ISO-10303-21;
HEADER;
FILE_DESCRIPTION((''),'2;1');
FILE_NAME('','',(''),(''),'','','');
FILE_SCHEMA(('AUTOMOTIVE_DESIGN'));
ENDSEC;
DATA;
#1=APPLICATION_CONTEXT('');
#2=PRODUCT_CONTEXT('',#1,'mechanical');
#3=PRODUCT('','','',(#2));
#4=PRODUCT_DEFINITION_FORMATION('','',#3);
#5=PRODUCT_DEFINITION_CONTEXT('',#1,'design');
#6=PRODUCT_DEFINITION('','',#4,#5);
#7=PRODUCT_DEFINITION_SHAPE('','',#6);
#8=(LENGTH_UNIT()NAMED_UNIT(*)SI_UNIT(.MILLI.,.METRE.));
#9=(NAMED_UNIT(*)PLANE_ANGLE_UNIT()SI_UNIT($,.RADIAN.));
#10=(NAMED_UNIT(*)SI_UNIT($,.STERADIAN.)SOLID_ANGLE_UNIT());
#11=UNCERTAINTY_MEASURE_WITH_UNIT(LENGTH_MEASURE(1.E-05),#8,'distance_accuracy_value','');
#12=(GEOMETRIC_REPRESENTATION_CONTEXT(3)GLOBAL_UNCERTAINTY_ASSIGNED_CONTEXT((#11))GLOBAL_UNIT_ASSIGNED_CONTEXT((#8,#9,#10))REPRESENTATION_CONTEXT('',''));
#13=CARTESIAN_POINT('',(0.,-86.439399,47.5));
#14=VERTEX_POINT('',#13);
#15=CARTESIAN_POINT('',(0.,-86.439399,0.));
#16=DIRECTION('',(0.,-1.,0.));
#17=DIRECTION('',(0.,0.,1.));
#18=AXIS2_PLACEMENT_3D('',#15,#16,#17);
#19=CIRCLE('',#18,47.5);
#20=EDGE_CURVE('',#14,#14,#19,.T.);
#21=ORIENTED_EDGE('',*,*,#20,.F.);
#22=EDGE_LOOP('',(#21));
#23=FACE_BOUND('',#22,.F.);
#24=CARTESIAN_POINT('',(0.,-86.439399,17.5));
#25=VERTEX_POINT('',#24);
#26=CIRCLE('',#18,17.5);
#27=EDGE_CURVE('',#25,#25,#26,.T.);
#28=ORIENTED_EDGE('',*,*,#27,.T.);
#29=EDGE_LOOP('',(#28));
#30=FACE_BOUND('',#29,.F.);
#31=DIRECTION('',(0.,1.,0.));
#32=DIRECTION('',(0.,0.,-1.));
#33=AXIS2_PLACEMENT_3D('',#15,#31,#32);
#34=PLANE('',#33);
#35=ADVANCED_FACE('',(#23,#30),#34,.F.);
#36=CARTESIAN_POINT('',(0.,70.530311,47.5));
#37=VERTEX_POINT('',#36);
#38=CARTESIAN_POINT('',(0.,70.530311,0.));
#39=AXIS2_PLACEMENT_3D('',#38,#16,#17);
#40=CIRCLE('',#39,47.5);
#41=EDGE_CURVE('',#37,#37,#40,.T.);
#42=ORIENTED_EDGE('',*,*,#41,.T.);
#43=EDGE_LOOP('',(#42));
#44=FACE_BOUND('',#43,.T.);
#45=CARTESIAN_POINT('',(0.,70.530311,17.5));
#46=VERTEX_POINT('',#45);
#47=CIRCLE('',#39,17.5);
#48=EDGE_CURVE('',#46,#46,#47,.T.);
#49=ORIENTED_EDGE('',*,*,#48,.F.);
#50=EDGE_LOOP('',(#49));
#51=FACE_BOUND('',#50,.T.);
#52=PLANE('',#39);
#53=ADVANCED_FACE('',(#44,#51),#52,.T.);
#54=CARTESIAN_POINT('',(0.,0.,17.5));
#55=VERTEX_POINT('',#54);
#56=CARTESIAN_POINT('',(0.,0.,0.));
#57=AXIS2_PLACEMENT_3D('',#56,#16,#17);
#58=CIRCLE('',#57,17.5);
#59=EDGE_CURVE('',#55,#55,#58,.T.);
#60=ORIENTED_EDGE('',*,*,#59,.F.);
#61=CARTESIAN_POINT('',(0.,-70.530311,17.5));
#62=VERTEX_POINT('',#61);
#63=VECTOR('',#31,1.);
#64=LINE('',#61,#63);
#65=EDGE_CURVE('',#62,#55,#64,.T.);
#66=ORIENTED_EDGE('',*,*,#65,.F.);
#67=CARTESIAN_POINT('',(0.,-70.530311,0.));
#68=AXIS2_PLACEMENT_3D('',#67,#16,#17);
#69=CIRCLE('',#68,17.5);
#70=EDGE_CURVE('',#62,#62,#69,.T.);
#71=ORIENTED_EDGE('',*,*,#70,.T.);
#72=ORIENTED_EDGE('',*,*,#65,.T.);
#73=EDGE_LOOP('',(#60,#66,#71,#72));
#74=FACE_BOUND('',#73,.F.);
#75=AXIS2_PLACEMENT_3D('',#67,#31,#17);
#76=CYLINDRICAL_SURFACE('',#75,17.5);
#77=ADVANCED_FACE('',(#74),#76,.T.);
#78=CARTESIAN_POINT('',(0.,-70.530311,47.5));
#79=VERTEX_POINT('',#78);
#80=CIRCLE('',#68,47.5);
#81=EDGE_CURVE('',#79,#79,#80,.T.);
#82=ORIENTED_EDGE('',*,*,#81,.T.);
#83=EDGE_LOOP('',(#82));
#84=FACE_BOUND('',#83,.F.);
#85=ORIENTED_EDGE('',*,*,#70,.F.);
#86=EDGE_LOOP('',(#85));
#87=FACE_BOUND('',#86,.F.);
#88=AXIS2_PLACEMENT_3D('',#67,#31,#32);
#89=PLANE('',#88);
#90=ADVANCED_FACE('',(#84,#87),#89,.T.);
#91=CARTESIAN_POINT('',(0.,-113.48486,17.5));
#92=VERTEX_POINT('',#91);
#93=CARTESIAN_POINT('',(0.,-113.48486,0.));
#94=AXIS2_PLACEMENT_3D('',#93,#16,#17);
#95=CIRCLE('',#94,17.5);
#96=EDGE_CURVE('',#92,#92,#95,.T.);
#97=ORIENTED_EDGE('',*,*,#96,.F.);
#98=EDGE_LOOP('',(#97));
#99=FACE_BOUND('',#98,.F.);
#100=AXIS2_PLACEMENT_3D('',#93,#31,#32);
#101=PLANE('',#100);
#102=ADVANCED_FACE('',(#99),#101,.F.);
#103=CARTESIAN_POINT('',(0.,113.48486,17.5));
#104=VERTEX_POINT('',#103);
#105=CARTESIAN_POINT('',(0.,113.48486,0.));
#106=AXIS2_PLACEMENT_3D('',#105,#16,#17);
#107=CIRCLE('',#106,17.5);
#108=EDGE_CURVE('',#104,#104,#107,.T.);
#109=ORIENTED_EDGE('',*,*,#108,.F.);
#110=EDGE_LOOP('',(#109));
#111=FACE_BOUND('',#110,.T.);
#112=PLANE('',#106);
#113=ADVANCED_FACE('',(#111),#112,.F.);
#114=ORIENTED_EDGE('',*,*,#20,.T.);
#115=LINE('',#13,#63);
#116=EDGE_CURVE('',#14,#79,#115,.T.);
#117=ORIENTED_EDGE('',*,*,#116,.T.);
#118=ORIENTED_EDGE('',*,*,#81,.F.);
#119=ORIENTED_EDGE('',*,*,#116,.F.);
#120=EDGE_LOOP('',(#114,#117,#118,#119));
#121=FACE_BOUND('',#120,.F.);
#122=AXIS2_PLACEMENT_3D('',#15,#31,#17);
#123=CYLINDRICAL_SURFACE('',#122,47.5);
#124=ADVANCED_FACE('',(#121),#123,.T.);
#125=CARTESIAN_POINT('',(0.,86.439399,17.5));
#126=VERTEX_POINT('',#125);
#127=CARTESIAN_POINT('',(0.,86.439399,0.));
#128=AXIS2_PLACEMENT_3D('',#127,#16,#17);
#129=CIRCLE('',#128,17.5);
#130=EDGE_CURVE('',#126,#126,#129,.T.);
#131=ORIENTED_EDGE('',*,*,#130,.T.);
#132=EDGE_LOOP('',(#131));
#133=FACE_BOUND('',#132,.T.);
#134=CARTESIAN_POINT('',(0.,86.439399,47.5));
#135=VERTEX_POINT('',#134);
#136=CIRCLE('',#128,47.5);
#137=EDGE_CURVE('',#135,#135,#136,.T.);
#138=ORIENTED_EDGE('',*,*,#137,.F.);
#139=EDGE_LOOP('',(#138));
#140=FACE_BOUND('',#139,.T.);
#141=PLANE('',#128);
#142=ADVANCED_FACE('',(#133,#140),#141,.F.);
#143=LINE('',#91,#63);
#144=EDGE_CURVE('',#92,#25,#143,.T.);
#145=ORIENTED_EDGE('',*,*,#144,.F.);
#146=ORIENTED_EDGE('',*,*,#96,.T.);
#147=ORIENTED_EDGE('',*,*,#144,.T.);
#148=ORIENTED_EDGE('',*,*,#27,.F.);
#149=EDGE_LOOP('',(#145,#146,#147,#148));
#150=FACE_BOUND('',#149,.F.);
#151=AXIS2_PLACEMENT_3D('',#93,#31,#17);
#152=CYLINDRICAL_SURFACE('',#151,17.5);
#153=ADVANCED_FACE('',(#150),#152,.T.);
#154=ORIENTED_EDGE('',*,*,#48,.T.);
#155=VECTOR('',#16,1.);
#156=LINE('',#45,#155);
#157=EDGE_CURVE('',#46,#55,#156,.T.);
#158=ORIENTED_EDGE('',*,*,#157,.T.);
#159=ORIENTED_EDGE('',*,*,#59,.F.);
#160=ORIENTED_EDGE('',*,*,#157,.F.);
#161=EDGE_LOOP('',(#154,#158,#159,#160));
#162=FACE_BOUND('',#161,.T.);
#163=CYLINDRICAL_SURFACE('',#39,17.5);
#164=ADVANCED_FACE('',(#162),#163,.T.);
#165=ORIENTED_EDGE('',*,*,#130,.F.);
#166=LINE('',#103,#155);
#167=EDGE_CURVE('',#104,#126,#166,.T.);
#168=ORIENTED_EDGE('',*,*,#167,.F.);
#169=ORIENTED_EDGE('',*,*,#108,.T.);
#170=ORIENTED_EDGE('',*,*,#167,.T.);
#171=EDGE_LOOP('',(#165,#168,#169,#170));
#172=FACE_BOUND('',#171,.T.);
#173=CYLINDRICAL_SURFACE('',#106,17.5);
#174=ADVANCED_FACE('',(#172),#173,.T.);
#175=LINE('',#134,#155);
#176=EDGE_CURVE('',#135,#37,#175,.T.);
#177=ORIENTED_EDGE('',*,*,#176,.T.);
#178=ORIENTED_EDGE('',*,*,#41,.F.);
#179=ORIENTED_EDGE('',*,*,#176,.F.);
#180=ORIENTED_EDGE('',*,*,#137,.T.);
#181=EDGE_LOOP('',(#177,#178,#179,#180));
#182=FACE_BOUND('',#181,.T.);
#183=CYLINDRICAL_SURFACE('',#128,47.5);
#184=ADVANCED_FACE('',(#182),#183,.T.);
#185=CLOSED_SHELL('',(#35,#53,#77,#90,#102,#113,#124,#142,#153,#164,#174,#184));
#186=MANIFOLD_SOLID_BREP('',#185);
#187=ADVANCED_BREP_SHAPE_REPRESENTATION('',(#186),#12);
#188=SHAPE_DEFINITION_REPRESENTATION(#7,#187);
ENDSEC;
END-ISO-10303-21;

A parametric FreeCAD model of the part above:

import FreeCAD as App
import Part
import Sketcher

V = App.Vector
Q = App.Units.Quantity

doc = App.newDocument("Part")
body = doc.addObject("PartDesign::Body", "Body")

sketch1 = doc.addObject("Sketcher::SketchObject", "Sketch")
body.addObject(sketch1)
sketch1.AttachmentSupport = (doc.YZ_Plane, [""])
sketch1.MapMode = "FlatFace"
sketch1.addGeometry(Part.LineSegment(V(71, 18, 0), V(0, 18, 0)), False)
sketch1.addGeometry(Part.LineSegment(V(0, 18, 0), V(0, 0, 0)), False)
sketch1.addGeometry(Part.LineSegment(V(0, 0, 0), V(113, 0, 0)), False)
sketch1.addGeometry(Part.LineSegment(V(113, 0, 0), V(113, 18, 0)), False)
sketch1.addGeometry(Part.LineSegment(V(113, 18, 0), V(86, 18, 0)), False)
sketch1.addGeometry(Part.LineSegment(V(86, 18, 0), V(86, 48, 0)), False)
sketch1.addGeometry(Part.LineSegment(V(86, 48, 0), V(71, 48, 0)), False)
sketch1.addGeometry(Part.LineSegment(V(71, 48, 0), V(71, 18, 0)), False)
sketch1.addConstraint(Sketcher.Constraint("Coincident", 0, 2, 1, 1))
sketch1.addConstraint(Sketcher.Constraint("Coincident", 1, 2, 2, 1))
sketch1.addConstraint(Sketcher.Constraint("Coincident", 2, 2, 3, 1))
sketch1.addConstraint(Sketcher.Constraint("Coincident", 3, 2, 4, 1))
sketch1.addConstraint(Sketcher.Constraint("Coincident", 4, 2, 5, 1))
sketch1.addConstraint(Sketcher.Constraint("Coincident", 5, 2, 6, 1))
sketch1.addConstraint(Sketcher.Constraint("Coincident", 6, 2, 7, 1))
sketch1.addConstraint(Sketcher.Constraint("Coincident", 7, 2, 0, 1))
sketch1.addConstraint(Sketcher.Constraint("Horizontal", 0))
sketch1.addConstraint(Sketcher.Constraint("Vertical", 1))
sketch1.addConstraint(Sketcher.Constraint("Horizontal", 2))
sketch1.addConstraint(Sketcher.Constraint("Vertical", 3))
sketch1.addConstraint(Sketcher.Constraint("Horizontal", 4))
sketch1.addConstraint(Sketcher.Constraint("Vertical", 5))
sketch1.addConstraint(Sketcher.Constraint("Horizontal", 6))
sketch1.addConstraint(Sketcher.Constraint("Vertical", 7))
sketch1.addConstraint(Sketcher.Constraint("Coincident", 1, 2, -1, 1))
sketch1.addConstraint(Sketcher.Constraint("Horizontal", 0, 2, 3, 2))
sketch1.addConstraint(Sketcher.Constraint("DistanceY", 5, 1, 5, 2, Q("30 mm")))
sketch1.addConstraint(Sketcher.Constraint("DistanceY", 1, 2, 1, 1, Q("17.5 mm")))
sketch1.addConstraint(Sketcher.Constraint("DistanceX", 0, 2, 0, 1, Q("70.530311 mm")))
sketch1.addConstraint(Sketcher.Constraint("DistanceX", 2, 1, 2, 2, Q("113.48486 mm")))
sketch1.addConstraint(Sketcher.Constraint("DistanceX", 4, 2, 4, 1, Q("27.045461 mm")))
revolution = doc.addObject("PartDesign::Revolution", "Revolution")
body.addObject(revolution)
revolution.Profile = sketch1
revolution.ReferenceAxis = (sketch1, ["H_Axis"])
revolution.Angle = 360
body2 = doc.addObject("PartDesign::Body", "Body001")
doc.recompute()

body2.BaseFeature = body
doc.recompute()

mirroring = doc.addObject("Part::Mirroring", "Mirroring")
mirroring.Source = body
mirroring.Base = V(0, 0, 0)
mirroring.Normal = V(0, -1, 0)
body3 = doc.addObject("PartDesign::Body", "Body002")
body3.BaseFeature = mirroring
boolean = doc.addObject("PartDesign::Boolean", "Boolean")
body2.addObject(boolean)
boolean.Type = "Fuse"
boolean.addObjects([body3])
doc.recompute()
mirroring.Visibility = False

doc.recompute()
